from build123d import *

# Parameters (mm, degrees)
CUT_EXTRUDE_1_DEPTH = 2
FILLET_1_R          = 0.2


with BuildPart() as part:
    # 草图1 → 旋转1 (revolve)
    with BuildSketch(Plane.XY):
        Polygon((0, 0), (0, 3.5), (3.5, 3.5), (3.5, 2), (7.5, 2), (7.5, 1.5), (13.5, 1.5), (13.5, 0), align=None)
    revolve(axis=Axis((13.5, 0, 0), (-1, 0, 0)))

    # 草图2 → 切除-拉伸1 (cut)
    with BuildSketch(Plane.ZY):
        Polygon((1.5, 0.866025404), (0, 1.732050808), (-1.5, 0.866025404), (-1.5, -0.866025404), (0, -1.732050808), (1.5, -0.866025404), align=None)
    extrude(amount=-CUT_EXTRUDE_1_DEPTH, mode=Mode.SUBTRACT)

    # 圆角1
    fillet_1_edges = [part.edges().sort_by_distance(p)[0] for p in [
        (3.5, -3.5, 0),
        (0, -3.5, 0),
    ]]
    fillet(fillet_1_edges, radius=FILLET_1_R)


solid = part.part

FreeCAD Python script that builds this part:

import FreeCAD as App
import Part
import Sketcher
from FreeCAD import Vector
Q = App.Units.Quantity


def edges_at(feature, points):
    """Names of the edges that pass closest to the given points."""
    edges = feature.Shape.Edges
    near = lambda p: min(range(len(edges)), key=lambda i: edges[i].distToShape(Part.Vertex(*p))[0])
    return sorted({f"Edge{near(p) + 1}" for p in points})


def add_polygon(sketch, points):
    """Adds a closed chain of lines whose ends are joined by coincident constraints."""
    first, n = sketch.GeometryCount, len(points)
    for a, b in zip(points, points[1:] + points[:1]):
        sketch.addGeometry(Part.LineSegment(App.Vector(*a, 0), App.Vector(*b, 0)), False)
    for i in range(n):
        sketch.addConstraint(Sketcher.Constraint("Coincident", first + i, 2, first + (i + 1) % n, 1))

doc = App.newDocument("Part")
body = doc.addObject("PartDesign::Body", "Body")

sketch1 = doc.addObject("Sketcher::SketchObject", "Sketch")
body.addObject(sketch1)
sketch1.AttachmentSupport = (doc.XY_Plane, [""])
sketch1.MapMode = "FlatFace"
add_polygon(sketch1, [(0, 3.5), (0, 0), (13.5, 0), (13.5, 1.5), (7.5, 1.5), (7.5, 2), (3.5, 2), (3.5, 3.5)])
sketch1.addConstraint([
    Sketcher.Constraint("Vertical", 0),
    Sketcher.Constraint("Horizontal", 1),
    Sketcher.Constraint("Vertical", 2),
    Sketcher.Constraint("Horizontal", 3),
    Sketcher.Constraint("Vertical", 4),
    Sketcher.Constraint("Horizontal", 5),
    Sketcher.Constraint("Vertical", 6),
    Sketcher.Constraint("Horizontal", 7),
    Sketcher.Constraint("Coincident", 0, 2, -1, 1),
    Sketcher.Constraint("Equal", 7, 0),
    Sketcher.Constraint("Equal", 2, 6),
    Sketcher.Constraint("DistanceX", 3, 2, 3, 1, 6.0),
    Sketcher.Constraint("DistanceX", 5, 2, 5, 1, 4.0),
    Sketcher.Constraint("DistanceX", 1, 1, 1, 2, 13.5),
    Sketcher.Constraint("DistanceY", 2, 1, 2, 2, 1.5),
])
revolution = doc.addObject("PartDesign::Revolution", "Revolution")
body.addObject(revolution)
revolution.Profile = sketch1
revolution.ReferenceAxis = (sketch1, ["H_Axis"])
revolution.Angle = 360

sketch2 = doc.addObject("Sketcher::SketchObject", "Sketch001")
body.addObject(sketch2)
sketch2.AttachmentSupport = (doc.YZ_Plane, [""])
sketch2.MapMode = "FlatFace"
add_polygon(sketch2, [(0.866025, 1.5), (1.732051, 0), (0.866025, -1.5), (-0.866025, -1.5), (-1.732051, 0), (-0.866025, 1.5)])
sketch2.addConstraint([
    Sketcher.Constraint("Horizontal", 2),
    Sketcher.Constraint("Horizontal", 5),
    Sketcher.Constraint("Symmetric", 0, 2, 3, 2, -1, 1),
    Sketcher.Constraint("Symmetric", 1, 2, 4, 2, -1, 1),
    Sketcher.Constraint("PointOnObject", 0, 2, -1),
    Sketcher.Constraint("Parallel", 0, 3),
    Sketcher.Constraint("Vertical", 2, 2, 4, 2),
    Sketcher.Constraint("Angle", 0, Q("-60 deg")),
    Sketcher.Constraint("DistanceY", 2, 2, 4, 2, 3.0),
    Sketcher.Constraint("DistanceX", 2, 2, 2, 1, 1.732051),
])
pocket1 = doc.addObject("PartDesign::Pocket", "Pocket")
body.addObject(pocket1)
pocket1.Profile = sketch2
pocket1.Length = 2
pocket1.Reversed = True
doc.recompute()

fillet = doc.addObject("PartDesign::Fillet", "Fillet")
body.addObject(fillet)
fillet.Base = (pocket1, edges_at(pocket1, [(3.5, -3.5, 0), (0, -3.5, 0)]))
fillet.Radius = 0.2

doc.recompute()
